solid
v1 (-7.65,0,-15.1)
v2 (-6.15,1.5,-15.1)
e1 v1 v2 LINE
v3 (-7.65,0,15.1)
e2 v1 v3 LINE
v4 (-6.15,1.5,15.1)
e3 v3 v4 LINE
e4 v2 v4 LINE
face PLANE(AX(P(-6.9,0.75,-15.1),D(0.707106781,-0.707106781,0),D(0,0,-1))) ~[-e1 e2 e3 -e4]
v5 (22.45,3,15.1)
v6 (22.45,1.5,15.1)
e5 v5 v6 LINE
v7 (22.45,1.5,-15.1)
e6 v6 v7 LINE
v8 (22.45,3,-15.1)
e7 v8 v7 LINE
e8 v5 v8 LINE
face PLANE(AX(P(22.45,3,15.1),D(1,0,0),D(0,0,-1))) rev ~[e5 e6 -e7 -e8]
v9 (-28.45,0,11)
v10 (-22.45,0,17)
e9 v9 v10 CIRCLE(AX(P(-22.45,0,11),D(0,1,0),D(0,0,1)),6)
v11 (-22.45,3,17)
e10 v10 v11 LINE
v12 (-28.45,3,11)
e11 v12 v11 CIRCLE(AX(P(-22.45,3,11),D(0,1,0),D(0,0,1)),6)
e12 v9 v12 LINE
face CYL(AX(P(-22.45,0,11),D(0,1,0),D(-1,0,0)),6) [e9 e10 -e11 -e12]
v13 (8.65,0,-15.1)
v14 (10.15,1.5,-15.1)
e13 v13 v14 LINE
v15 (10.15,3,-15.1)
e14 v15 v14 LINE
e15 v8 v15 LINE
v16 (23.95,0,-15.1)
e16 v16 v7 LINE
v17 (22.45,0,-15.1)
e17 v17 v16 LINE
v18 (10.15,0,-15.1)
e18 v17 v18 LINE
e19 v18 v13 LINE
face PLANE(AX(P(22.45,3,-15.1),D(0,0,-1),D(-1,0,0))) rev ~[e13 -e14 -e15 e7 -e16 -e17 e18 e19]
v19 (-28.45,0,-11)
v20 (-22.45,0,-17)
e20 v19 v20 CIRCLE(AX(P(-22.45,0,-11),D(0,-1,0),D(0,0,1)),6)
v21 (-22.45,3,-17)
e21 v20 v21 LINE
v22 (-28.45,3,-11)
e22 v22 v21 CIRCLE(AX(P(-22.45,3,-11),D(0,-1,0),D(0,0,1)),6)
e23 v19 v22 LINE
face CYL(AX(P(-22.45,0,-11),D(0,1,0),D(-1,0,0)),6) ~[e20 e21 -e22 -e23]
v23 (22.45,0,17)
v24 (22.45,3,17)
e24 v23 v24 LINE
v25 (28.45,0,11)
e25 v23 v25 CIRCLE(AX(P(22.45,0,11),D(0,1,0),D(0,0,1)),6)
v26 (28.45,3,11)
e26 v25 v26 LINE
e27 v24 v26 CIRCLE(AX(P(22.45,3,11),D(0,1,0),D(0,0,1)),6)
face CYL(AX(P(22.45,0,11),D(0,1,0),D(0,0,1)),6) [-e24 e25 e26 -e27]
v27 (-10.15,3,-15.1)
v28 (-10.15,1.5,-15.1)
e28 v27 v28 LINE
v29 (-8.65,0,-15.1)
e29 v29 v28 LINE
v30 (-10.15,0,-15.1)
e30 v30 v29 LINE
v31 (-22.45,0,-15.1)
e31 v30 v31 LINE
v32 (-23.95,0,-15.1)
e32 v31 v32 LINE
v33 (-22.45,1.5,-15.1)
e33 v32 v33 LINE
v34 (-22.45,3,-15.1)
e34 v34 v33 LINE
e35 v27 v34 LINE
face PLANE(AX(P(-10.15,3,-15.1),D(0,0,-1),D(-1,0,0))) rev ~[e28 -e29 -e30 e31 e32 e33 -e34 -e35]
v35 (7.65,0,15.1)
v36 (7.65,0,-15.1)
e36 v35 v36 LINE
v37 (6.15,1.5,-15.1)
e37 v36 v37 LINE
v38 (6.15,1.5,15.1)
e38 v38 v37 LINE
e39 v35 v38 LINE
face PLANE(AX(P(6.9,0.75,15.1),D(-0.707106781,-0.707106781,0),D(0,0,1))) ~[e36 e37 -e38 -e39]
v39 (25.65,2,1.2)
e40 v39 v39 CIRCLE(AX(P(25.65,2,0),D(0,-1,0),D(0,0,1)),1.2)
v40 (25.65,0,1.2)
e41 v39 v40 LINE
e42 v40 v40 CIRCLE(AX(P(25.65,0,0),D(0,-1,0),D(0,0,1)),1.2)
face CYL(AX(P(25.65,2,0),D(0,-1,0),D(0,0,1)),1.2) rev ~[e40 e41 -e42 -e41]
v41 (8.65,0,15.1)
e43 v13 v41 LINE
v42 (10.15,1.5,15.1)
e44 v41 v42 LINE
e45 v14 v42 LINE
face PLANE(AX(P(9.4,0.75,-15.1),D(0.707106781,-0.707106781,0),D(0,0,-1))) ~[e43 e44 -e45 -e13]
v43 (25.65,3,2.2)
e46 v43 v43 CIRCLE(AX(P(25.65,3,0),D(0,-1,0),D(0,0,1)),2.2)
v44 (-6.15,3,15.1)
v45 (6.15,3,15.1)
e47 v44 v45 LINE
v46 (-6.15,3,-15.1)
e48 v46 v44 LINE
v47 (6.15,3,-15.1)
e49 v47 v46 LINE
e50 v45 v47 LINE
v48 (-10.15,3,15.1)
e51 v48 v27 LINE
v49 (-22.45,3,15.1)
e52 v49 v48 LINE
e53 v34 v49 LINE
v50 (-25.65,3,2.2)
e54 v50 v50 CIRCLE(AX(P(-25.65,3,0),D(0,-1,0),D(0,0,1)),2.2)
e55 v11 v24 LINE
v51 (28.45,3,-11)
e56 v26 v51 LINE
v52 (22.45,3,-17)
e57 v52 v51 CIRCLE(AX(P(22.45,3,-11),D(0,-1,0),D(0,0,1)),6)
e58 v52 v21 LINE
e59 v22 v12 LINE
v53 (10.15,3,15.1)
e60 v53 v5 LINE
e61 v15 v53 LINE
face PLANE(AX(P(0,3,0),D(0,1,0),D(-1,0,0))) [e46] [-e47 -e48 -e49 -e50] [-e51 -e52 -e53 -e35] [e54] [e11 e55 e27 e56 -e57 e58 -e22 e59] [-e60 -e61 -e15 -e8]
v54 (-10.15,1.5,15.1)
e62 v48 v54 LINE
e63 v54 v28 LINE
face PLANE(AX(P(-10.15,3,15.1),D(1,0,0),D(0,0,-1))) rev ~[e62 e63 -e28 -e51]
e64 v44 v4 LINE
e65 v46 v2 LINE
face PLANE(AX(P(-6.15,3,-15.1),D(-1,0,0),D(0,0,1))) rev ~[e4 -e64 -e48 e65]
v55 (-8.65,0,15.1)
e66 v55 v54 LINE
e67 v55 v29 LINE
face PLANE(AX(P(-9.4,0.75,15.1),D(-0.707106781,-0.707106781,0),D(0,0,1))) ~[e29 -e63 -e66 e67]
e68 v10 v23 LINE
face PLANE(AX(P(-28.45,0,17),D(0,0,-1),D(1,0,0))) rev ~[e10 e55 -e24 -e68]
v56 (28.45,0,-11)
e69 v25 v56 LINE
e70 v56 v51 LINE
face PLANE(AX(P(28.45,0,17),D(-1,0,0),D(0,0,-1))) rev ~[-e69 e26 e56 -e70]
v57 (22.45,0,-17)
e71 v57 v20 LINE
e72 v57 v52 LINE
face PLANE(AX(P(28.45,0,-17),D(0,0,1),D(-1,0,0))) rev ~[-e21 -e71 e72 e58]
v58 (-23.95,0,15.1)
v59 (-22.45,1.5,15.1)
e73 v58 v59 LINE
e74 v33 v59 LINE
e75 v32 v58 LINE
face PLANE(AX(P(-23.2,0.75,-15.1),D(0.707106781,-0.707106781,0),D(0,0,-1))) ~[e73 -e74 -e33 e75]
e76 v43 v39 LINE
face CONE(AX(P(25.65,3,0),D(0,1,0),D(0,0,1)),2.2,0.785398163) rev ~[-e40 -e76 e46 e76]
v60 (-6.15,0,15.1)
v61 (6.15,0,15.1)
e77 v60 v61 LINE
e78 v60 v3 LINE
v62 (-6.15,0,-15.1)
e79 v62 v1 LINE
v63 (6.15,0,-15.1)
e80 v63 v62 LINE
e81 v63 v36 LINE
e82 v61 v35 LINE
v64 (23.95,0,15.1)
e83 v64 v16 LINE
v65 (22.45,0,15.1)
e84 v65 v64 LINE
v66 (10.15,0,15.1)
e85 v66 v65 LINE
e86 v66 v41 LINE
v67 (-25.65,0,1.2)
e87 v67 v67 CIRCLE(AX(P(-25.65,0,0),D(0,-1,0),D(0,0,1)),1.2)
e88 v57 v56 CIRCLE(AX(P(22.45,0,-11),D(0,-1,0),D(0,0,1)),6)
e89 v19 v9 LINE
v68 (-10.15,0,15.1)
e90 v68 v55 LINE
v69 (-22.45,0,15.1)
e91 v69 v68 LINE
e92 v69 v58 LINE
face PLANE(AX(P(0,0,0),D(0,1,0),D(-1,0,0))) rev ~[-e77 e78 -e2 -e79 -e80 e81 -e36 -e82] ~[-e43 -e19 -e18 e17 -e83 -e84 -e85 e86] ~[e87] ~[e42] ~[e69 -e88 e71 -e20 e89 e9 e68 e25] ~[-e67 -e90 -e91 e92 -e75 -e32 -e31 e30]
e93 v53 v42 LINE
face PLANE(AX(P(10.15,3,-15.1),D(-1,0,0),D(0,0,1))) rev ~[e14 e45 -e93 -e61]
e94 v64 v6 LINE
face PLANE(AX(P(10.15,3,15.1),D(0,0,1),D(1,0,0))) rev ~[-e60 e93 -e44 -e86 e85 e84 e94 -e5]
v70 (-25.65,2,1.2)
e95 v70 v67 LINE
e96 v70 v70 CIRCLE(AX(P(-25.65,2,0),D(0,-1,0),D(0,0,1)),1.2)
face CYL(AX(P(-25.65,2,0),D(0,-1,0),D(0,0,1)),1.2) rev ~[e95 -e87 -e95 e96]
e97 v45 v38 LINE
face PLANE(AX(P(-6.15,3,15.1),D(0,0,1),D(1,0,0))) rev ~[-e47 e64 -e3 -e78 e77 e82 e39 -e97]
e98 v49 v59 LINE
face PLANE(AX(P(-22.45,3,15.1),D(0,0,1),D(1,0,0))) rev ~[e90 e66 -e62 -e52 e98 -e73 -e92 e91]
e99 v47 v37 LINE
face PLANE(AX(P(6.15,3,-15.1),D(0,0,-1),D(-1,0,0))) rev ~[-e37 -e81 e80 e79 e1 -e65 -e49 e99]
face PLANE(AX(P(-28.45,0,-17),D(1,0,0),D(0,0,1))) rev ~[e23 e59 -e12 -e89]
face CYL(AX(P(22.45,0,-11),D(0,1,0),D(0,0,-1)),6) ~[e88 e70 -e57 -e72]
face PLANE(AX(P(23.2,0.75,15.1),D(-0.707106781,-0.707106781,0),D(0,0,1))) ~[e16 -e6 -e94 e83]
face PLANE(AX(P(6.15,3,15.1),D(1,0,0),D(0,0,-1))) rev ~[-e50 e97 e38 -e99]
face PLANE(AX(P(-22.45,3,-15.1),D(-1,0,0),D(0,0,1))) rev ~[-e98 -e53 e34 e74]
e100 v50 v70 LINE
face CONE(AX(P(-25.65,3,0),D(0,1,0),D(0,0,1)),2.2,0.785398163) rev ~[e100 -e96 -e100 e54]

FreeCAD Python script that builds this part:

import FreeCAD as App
import Part
import Sketcher

V = App.Vector
Q = App.Units.Quantity


def edges_at(feature, points):
    """Names of the edges that pass closest to the given points."""
    edges = feature.Shape.Edges
    near = lambda p: min(range(len(edges)), key=lambda i: edges[i].distToShape(Part.Vertex(*p))[0])
    return sorted({f"Edge{near(p) + 1}" for p in points})


def add_polygon(sketch, points):
    """Adds a closed chain of lines whose ends are joined by coincident constraints."""
    first, n = sketch.GeometryCount, len(points)
    for a, b in zip(points, points[1:] + points[:1]):
        sketch.addGeometry(Part.LineSegment(App.Vector(*a, 0), App.Vector(*b, 0)), False)
    for i in range(n):
        sketch.addConstraint(Sketcher.Constraint("Coincident", first + i, 2, first + (i + 1) % n, 1))

doc = App.newDocument("Part")
params = doc.addObject("Spreadsheet::Sheet", "Params")
for row, (alias, value) in enumerate([
    ("sketch1_height", "34 mm"),
    ("sketch1_width", "56.9 mm"),
    ("pad1_length", "3 mm"),
    ("sketch2_width", "12.3 mm"),
    ("sketch2_height", "30.2 mm"),
    ("pocket1_length", "3 mm"),
    ("sketch3_diameter", "2.4 mm"),
    ("hole_diameter", "2.4 mm"),
    ("hole_csink_diameter", "4.4 mm"),
    ("fillet_radius", "6 mm"),
    ("chamfer_size", "1.5 mm"),
], start=1):
    params.set(f"A{row}", alias)
    params.set(f"B{row}", "=" + value)
    params.setAlias(f"B{row}", alias)

body = doc.addObject("PartDesign::Body", "Body")

sketch1 = body.newObject("Sketcher::SketchObject", "Sketch")
sketch1.AttachmentSupport = (doc.getObject("XZ_Plane"), [""])
sketch1.MapMode = "FlatFace"
add_polygon(sketch1, [(-28, -17), (-28, 17), (28, 17), (28, -17)])
sketch1.addConstraint([
    Sketcher.Constraint("Vertical", 0),
    Sketcher.Constraint("Horizontal", 1),
    Sketcher.Constraint("Vertical", 2),
    Sketcher.Constraint("Horizontal", 3),
    Sketcher.Constraint("Symmetric", 0, 2, 2, 2, -1, 1),
    Sketcher.Constraint("DistanceY", 0, 1, 0, 2, Q("34 mm")),
    Sketcher.Constraint("DistanceX", 1, 1, 1, 2, Q("56.9 mm")),
])
sketch1.setExpression("Constraints[9]", "Params.sketch1_height")
sketch1.setExpression("Constraints[10]", "Params.sketch1_width")
pad1 = body.newObject("PartDesign::Pad", "Pad")
pad1.Profile = sketch1
pad1.setExpression("Length", "Params.pad1_length")
pad1.Reversed = True

sketch2 = body.newObject("Sketcher::SketchObject", "Sketch001")
sketch2.AttachmentSupport = (doc.getObject("XZ_Plane"), [""])
sketch2.MapMode = "FlatFace"
sketch2.AttachmentOffset = App.Placement(V(0, 0, -3), App.Rotation())
add_polygon(sketch2, [(-6, -15), (-6, 15), (6, 15), (6, -15)])
add_polygon(sketch2, [(10, -15), (10, 15), (22, 15), (22, -15)])
add_polygon(sketch2, [(-22, -15), (-22, 15), (-10, 15), (-10, -15)])
sketch2.addConstraint([
    Sketcher.Constraint("Vertical", 0),
    Sketcher.Constraint("Horizontal", 1),
    Sketcher.Constraint("Vertical", 2),
    Sketcher.Constraint("Horizontal", 3),
    Sketcher.Constraint("Vertical", 4),
    Sketcher.Constraint("Horizontal", 5),
    Sketcher.Constraint("Vertical", 6),
    Sketcher.Constraint("Horizontal", 7),
    Sketcher.Constraint("Vertical", 8),
    Sketcher.Constraint("Horizontal", 9),
    Sketcher.Constraint("Vertical", 10),
    Sketcher.Constraint("Horizontal", 11),
    Sketcher.Constraint("Symmetric", 0, 2, 2, 2, -1, 1),
    Sketcher.Constraint("Symmetric", 6, 2, 8, 2, -1, 1),
    Sketcher.Constraint("Symmetric", 4, 2, 10, 2, -1, 1),
    Sketcher.Constraint("Horizontal", 1, 2, 4, 2),
    Sketcher.Constraint("Horizontal", 3, 2, 6, 2),
    Sketcher.Constraint("Equal", 3, 5),
    Sketcher.Constraint("DistanceX", 1, 1, 1, 2, Q("12.3 mm")),
    Sketcher.Constraint("DistanceY", 0, 1, 0, 2, Q("30.2 mm")),
    Sketcher.Constraint("DistanceX", 1, 2, 4, 2, Q("4 mm")),
])
sketch2.setExpression("Constraints[30]", "Params.sketch2_width")
sketch2.setExpression("Constraints[31]", "Params.sketch2_height")
pocket1 = body.newObject("PartDesign::Pocket", "Pocket")
pocket1.Profile = sketch2
pocket1.setExpression("Length", "Params.pocket1_length")
pocket1.Reversed = True

sketch3 = body.newObject("Sketcher::SketchObject", "Sketch002")
sketch3.AttachmentSupport = (doc.getObject("XZ_Plane"), [""])
sketch3.MapMode = "FlatFace"
sketch3.AttachmentOffset = App.Placement(V(0, 0, -3), App.Rotation())
sketch3.addGeometry([
    Part.Circle(V(-25.6, 0, 0), V(0, 0, 1), 1.2),
    Part.Circle(V(25.6, 0, 0), V(0, 0, 1), 1.2),
], False)
sketch3.addConstraint([
    Sketcher.Constraint("Equal", 0, 1),
    Sketcher.Constraint("Symmetric", 0, 3, 1, 3, -1, 1),
    Sketcher.Constraint("PointOnObject", 0, 3, -1),
    Sketcher.Constraint("Diameter", 0, Q("2.4 mm")),
    Sketcher.Constraint("DistanceX", 0, 3, 1, 3, Q("51.3 mm")),
])
sketch3.setExpression("Constraints[3]", "Params.sketch3_diameter")
doc.recompute()
hole = body.newObject("PartDesign::Hole", "Hole")
hole.Profile = sketch3
hole.ThreadType = "None"
hole.setExpression("Diameter", "Params.hole_diameter")
hole.DepthType = "ThroughAll"
hole.HoleCutType = "Countersink"
hole.setExpression("HoleCutDiameter", "Params.hole_csink_diameter")
hole.HoleCutCountersinkAngle = 90
hole.Reversed = True
doc.recompute()

fillet = body.newObject("PartDesign::Fillet", "Fillet")
fillet.Base = (hole, edges_at(hole, [
    (28.45, 1.5, 17),
    (28.45, 1.5, -17),
    (-28.45, 1.5, 17),
    (-28.45, 1.5, -17),
]))
fillet.setExpression("Radius", "Params.fillet_radius")
doc.recompute()

chamfer = body.newObject("PartDesign::Chamfer", "Chamfer")
chamfer.Base = (fillet, edges_at(fillet, [
    (-6.15, 0, 0),
    (10.15, 0, 0),
    (6.15, 0, 0),
    (-10.15, 0, 0),
    (22.45, 0, 0),
    (-22.45, 0, 0),
]))
chamfer.setExpression("Size", "Params.chamfer_size")

doc.recompute()
